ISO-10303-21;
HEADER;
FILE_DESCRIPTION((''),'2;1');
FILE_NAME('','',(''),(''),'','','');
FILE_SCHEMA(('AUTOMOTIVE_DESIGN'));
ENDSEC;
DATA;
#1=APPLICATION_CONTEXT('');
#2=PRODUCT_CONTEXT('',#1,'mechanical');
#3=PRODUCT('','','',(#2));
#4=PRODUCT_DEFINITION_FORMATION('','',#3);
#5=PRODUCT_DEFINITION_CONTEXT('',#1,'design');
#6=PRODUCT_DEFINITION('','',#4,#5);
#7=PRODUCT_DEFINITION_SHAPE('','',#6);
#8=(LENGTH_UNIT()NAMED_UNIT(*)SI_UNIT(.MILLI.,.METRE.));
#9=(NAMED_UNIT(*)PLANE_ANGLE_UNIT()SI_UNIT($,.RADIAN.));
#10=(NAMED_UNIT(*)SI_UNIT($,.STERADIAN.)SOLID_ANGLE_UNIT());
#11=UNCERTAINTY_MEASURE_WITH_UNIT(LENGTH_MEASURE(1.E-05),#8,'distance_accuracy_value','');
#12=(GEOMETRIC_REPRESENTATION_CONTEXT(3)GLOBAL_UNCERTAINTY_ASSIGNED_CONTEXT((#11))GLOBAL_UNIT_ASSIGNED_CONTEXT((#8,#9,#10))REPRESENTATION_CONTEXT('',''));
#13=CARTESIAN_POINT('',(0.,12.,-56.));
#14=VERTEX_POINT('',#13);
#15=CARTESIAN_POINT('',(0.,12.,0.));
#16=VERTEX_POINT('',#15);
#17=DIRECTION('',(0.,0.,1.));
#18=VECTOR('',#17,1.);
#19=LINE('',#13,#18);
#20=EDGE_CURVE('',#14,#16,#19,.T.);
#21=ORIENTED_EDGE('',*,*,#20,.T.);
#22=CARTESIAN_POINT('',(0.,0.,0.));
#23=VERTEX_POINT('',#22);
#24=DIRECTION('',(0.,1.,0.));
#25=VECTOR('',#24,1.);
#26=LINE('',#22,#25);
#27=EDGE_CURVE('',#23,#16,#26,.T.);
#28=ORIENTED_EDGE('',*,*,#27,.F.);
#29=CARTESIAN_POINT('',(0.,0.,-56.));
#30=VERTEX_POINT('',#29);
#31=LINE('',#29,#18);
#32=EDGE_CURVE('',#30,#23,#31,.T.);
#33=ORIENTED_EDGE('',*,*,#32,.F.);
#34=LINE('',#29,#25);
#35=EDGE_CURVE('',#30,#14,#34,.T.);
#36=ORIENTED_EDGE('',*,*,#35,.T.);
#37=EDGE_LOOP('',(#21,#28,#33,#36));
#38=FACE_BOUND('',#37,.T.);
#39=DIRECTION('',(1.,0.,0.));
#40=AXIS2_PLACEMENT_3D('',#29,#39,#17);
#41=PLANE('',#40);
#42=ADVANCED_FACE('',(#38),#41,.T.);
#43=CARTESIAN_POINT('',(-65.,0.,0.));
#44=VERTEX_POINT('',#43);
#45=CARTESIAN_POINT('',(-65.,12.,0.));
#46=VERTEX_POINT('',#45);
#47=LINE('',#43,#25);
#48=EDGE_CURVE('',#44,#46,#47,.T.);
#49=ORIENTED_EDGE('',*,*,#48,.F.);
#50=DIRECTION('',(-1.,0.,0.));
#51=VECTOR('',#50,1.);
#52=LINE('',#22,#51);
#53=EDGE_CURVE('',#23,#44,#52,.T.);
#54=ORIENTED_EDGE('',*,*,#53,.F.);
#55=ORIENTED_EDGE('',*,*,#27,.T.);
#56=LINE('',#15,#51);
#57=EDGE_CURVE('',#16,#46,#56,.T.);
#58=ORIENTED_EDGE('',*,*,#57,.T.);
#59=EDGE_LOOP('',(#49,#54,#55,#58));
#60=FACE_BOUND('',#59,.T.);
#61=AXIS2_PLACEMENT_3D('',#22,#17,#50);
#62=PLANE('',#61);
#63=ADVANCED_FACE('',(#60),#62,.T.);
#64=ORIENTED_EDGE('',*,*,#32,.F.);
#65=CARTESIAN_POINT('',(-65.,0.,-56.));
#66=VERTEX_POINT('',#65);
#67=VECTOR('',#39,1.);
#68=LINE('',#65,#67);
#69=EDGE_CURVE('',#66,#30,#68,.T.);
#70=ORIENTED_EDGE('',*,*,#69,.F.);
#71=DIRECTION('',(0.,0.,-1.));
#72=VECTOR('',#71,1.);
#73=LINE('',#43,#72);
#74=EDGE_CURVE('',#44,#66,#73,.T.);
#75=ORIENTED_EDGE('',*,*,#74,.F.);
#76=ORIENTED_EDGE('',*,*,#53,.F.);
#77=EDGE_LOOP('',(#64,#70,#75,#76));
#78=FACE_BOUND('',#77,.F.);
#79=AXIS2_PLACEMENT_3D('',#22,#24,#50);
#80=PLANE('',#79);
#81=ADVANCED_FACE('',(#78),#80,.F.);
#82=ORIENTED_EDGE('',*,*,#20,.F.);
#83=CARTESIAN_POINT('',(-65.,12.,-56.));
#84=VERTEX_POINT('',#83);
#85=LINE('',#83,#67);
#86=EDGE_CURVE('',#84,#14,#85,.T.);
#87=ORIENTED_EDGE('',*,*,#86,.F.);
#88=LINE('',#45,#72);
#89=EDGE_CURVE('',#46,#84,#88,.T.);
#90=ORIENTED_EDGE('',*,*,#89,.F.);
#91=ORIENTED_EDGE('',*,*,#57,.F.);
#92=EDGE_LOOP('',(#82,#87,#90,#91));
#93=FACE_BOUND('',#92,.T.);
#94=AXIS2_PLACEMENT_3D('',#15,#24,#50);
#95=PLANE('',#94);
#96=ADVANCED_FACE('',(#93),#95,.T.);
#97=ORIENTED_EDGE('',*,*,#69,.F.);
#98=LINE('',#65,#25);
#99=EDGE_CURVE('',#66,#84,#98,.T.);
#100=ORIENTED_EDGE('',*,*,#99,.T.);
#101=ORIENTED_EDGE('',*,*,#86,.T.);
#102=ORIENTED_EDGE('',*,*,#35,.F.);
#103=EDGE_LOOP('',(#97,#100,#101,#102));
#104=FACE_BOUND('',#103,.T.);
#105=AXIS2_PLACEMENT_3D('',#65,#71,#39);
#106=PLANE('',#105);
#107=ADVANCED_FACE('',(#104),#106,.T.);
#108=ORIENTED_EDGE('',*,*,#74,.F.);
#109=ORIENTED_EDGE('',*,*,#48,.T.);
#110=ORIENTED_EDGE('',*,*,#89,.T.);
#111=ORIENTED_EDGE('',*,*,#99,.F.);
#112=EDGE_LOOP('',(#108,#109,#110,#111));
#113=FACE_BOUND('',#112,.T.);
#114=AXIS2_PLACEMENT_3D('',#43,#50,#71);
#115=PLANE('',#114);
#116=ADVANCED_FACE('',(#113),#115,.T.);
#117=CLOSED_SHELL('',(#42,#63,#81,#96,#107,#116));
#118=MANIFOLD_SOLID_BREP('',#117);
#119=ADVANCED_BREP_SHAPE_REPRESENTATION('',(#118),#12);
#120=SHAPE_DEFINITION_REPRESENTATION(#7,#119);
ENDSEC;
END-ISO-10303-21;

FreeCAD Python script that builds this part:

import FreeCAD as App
import Part
import Sketcher
from FreeCAD import Vector

doc = App.newDocument("Part")
params = doc.addObject("Spreadsheet::Sheet", "Params")
for row, (alias, value) in enumerate([
    ("sketch1_width", "65 mm"),
    ("sketch1_height", "56 mm"),
    ("pad1_length", "12 mm"),
], start=1):
    params.set(f"A{row}", alias)
    params.set(f"B{row}", "=" + value)
    params.setAlias(f"B{row}", alias)

body = doc.addObject("PartDesign::Body", "Body")

sketch1 = body.newObject("Sketcher::SketchObject", "Sketch")
sketch1.AttachmentSupport = (doc.getObject("XZ_Plane"), [""])
sketch1.MapMode = "FlatFace"
sketch1.addGeometry(Part.LineSegment(Vector(-65, 0, 0), Vector(0, 0, 0)), False)
sketch1.addGeometry(Part.LineSegment(Vector(0, 0, 0), Vector(0, -56, 0)), False)
sketch1.addGeometry(Part.LineSegment(Vector(0, -56, 0), Vector(-65, -56, 0)), False)
sketch1.addGeometry(Part.LineSegment(Vector(-65, -56, 0), Vector(-65, 0, 0)), False)
sketch1.addConstraint(Sketcher.Constraint("Coincident", 0, 2, 1, 1))
sketch1.addConstraint(Sketcher.Constraint("Coincident", 1, 2, 2, 1))
sketch1.addConstraint(Sketcher.Constraint("Coincident", 2, 2, 3, 1))
sketch1.addConstraint(Sketcher.Constraint("Coincident", 3, 2, 0, 1))
sketch1.addConstraint(Sketcher.Constraint("Horizontal", 0))
sketch1.addConstraint(Sketcher.Constraint("Vertical", 1))
sketch1.addConstraint(Sketcher.Constraint("Horizontal", 2))
sketch1.addConstraint(Sketcher.Constraint("Vertical", 3))
sketch1.addConstraint(Sketcher.Constraint("Coincident", 0, 2, -1, 1))
sketch1.addConstraint(Sketcher.Constraint("DistanceX", 0, 1, 0, 2, 65.0))
sketch1.addConstraint(Sketcher.Constraint("DistanceY", 1, 2, 1, 1, 56.0))
sketch1.setExpression("Constraints[9]", "Params.sketch1_width")
sketch1.setExpression("Constraints[10]", "Params.sketch1_height")
pad1 = body.newObject("PartDesign::Pad", "Pad")
pad1.Profile = sketch1
pad1.setExpression("Length", "Params.pad1_length")
pad1.Reversed = True

doc.recompute()
